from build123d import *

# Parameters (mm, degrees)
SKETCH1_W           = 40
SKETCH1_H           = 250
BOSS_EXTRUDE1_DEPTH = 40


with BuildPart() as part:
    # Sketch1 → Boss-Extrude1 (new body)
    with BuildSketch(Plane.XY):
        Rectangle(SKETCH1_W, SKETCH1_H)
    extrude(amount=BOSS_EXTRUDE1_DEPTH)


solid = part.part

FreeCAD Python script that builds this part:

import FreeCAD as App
import Part
import Sketcher
from FreeCAD import Vector
Q = App.Units.Quantity

doc = App.newDocument("Part")
params = doc.addObject("Spreadsheet::Sheet", "Params")
for row, (alias, value) in enumerate([
    ("sketch1_width", "40 mm"),
    ("sketch1_height", "250 mm"),
    ("pad1_length", "40 mm"),
], start=1):
    params.set(f"A{row}", alias)
    params.set(f"B{row}", "=" + value)
    params.setAlias(f"B{row}", alias)

body = doc.addObject("PartDesign::Body", "Body")

# Sketch on XY plane
sketch1 = doc.addObject("Sketcher::SketchObject", "Sketch")
body.addObject(sketch1)
sketch1.AttachmentSupport = (doc.XY_Plane, [""])
sketch1.MapMode = "FlatFace"
sketch1.addGeometry([
    Part.LineSegment(Vector(-20, 125, 0), Vector(-20, -125, 0)),
    Part.LineSegment(Vector(-20, -125, 0), Vector(20, -125, 0)),
    Part.LineSegment(Vector(20, -125, 0), Vector(20, 125, 0)),
    Part.LineSegment(Vector(20, 125, 0), Vector(-20, 125, 0)),
], False)
sketch1.addConstraint([
    Sketcher.Constraint("Coincident", 0, 2, 1, 1),
    Sketcher.Constraint("Coincident", 1, 2, 2, 1),
    Sketcher.Constraint("Coincident", 2, 2, 3, 1),
    Sketcher.Constraint("Coincident", 3, 2, 0, 1),
    Sketcher.Constraint("Vertical", 0),
    Sketcher.Constraint("Horizontal", 1),
    Sketcher.Constraint("Vertical", 2),
    Sketcher.Constraint("Horizontal", 3),
    Sketcher.Constraint("Symmetric", 0, 2, 2, 2, -1, 1),
    Sketcher.Constraint("DistanceX", 1, 1, 1, 2, Q("40 mm")),
    Sketcher.Constraint("DistanceY", 0, 2, 0, 1, Q("250 mm")),
])
sketch1.setExpression("Constraints[9]", "Params.sketch1_width")
sketch1.setExpression("Constraints[10]", "Params.sketch1_height")
pad1 = doc.addObject("PartDesign::Pad", "Pad")
body.addObject(pad1)
pad1.Profile = sketch1
pad1.setExpression("Length", "Params.pad1_length")

doc.recompute()
